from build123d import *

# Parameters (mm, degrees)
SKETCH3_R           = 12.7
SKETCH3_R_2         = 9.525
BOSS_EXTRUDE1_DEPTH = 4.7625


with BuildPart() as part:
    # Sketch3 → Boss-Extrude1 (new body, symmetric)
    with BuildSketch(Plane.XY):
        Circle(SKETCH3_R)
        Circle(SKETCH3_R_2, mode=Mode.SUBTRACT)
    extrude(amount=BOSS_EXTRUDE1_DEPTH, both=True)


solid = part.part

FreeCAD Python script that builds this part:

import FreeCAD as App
import Part
import Sketcher

V = App.Vector
Q = App.Units.Quantity

doc = App.newDocument("Part")
body = doc.addObject("PartDesign::Body", "Body")

sketch1 = body.newObject("Sketcher::SketchObject", "Sketch")
sketch1.AttachmentSupport = (doc.getObject("XY_Plane"), [""])
sketch1.MapMode = "FlatFace"
sketch1.addGeometry(Part.Circle(V(0, 0, 0), V(0, 0, 1), 13), False)
sketch1.addGeometry(Part.Circle(V(0, 0, 0), V(0, 0, 1), 10), False)
sketch1.addConstraint(Sketcher.Constraint("Coincident", 0, 3, -1, 1))
sketch1.addConstraint(Sketcher.Constraint("Coincident", 1, 3, -1, 1))
sketch1.addConstraint(Sketcher.Constraint("Diameter", 0, Q("1 in")))
sketch1.addConstraint(Sketcher.Constraint("Diameter", 1, Q("0.75 in")))
pad1 = body.newObject("PartDesign::Pad", "Pad")
pad1.Profile = sketch1
pad1.Length = Q("0.375 in")
pad1.Midplane = True

doc.recompute()
